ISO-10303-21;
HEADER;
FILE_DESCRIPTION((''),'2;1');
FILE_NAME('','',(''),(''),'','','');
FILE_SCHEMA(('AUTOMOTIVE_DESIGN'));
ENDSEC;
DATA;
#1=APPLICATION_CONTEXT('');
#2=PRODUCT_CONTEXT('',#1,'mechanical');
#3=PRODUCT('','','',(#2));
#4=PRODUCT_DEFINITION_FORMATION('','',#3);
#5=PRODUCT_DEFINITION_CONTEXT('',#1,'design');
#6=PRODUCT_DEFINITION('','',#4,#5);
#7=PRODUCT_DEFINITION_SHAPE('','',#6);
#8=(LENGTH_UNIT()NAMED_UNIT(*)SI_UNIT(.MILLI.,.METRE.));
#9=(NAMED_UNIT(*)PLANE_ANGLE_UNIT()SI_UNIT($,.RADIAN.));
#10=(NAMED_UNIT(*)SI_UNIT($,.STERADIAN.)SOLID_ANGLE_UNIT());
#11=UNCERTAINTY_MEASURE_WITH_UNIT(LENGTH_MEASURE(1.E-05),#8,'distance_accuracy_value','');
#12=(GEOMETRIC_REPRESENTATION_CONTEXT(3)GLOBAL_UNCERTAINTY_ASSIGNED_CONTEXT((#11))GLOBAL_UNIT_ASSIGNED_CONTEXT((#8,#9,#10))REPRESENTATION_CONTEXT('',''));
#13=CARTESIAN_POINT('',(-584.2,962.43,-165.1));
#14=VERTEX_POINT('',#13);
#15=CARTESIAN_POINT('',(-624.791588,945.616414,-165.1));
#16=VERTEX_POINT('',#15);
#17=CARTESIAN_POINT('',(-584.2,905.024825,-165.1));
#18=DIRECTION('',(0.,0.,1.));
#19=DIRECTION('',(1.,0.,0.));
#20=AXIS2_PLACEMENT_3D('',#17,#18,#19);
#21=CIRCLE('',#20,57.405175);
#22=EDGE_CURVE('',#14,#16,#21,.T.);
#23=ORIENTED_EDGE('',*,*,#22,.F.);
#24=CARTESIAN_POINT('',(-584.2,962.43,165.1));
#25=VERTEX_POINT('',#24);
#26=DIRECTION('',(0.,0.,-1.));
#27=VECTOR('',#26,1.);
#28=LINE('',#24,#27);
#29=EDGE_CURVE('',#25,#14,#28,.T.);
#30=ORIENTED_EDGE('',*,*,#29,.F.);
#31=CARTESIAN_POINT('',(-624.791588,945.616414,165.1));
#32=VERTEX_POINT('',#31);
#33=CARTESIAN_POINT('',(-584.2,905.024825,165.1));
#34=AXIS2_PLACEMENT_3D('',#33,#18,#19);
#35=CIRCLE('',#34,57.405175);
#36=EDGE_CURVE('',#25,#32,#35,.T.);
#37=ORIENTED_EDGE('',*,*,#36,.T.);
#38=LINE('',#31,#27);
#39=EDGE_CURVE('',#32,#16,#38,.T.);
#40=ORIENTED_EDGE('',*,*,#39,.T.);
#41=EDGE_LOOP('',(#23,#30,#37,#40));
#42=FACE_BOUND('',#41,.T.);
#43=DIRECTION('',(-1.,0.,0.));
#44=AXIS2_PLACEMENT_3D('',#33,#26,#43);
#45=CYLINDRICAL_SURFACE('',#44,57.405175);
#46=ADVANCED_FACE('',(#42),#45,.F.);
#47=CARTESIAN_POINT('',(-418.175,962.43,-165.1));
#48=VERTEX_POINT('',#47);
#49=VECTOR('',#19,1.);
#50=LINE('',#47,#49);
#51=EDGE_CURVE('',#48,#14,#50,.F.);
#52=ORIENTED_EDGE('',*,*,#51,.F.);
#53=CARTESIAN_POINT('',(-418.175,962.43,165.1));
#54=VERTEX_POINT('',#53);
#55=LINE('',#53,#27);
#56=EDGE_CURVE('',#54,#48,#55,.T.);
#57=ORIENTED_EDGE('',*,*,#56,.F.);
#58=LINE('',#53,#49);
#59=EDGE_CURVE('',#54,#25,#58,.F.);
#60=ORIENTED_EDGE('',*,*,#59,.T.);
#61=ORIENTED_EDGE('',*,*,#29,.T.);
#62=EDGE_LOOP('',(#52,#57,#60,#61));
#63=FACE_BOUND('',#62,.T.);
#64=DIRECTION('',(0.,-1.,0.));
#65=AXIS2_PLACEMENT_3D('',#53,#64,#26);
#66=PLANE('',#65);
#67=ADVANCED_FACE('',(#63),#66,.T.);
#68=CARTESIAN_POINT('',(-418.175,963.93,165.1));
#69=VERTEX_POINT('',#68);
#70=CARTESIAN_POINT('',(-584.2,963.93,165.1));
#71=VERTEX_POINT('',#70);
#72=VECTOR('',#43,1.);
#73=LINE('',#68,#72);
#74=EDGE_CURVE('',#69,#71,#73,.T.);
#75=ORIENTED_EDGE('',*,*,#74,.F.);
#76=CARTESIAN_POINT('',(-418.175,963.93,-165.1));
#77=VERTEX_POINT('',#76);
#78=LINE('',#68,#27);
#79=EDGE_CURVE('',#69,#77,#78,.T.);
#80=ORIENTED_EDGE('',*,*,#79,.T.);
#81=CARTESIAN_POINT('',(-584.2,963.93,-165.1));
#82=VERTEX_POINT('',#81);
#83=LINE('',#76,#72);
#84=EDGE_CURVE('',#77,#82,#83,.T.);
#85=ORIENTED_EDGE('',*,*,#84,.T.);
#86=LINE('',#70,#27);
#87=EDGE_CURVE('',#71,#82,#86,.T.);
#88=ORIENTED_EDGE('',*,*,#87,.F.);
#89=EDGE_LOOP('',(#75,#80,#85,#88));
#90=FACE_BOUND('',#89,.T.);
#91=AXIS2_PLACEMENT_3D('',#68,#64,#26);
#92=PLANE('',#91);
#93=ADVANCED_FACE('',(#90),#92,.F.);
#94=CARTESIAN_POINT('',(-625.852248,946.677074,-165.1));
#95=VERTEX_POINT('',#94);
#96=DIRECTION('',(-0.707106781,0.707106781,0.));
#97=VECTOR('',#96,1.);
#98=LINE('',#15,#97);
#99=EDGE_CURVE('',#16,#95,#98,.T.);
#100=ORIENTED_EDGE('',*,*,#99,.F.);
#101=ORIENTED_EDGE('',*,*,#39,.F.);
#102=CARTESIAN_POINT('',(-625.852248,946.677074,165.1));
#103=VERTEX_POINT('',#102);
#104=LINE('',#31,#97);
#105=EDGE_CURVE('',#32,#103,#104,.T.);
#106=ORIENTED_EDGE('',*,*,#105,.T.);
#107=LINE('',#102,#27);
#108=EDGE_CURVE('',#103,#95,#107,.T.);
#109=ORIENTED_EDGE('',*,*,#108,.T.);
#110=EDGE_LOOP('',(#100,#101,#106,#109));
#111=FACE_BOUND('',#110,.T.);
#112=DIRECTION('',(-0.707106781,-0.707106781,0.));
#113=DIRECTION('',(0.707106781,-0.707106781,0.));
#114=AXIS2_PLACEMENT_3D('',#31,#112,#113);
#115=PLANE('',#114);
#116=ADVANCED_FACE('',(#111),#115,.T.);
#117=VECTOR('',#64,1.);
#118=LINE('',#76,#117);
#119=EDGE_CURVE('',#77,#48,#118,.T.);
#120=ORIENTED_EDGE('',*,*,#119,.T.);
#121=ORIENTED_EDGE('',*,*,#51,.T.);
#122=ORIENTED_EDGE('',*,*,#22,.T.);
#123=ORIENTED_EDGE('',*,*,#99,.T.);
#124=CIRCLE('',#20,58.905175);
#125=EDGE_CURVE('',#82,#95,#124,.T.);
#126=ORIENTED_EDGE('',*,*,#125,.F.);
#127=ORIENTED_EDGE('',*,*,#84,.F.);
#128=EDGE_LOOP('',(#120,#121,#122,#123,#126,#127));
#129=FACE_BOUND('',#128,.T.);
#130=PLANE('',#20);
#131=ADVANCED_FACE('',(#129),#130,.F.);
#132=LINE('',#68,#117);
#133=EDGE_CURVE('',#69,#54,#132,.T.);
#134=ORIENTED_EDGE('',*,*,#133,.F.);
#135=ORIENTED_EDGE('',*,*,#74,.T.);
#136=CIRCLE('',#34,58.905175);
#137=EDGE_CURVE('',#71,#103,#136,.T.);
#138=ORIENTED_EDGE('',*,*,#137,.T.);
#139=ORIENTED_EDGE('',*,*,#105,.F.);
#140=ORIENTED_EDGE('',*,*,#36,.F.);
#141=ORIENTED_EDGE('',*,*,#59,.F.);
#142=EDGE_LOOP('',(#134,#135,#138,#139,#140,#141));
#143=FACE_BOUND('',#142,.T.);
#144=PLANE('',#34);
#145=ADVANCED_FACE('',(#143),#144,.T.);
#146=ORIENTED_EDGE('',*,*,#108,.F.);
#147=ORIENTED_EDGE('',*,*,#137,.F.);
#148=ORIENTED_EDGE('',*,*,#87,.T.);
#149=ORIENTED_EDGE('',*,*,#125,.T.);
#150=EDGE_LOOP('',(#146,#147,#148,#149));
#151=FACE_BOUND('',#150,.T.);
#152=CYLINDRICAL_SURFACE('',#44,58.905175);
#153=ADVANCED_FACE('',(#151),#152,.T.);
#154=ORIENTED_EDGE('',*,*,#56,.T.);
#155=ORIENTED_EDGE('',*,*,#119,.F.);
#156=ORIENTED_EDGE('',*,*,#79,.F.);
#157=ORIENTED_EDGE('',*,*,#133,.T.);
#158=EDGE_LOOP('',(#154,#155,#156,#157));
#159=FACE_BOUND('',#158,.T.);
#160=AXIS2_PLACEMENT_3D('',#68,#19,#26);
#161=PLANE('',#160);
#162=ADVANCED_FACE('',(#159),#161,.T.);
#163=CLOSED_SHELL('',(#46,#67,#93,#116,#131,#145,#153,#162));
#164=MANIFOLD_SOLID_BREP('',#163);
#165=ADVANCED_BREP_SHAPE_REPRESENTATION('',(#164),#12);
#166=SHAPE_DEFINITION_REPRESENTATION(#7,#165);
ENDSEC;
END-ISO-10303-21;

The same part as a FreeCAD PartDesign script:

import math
import FreeCAD as App
import Part
import Sketcher
Q = App.Units.Quantity

doc = App.newDocument("Part")
body = doc.addObject("PartDesign::Body", "Body")

sketch1 = body.newObject("Sketcher::SketchObject", "Sketch")
sketch1.AttachmentSupport = (doc.getObject("XY_Plane"), [""])
sketch1.MapMode = "FlatFace"
sketch1.addGeometry([
    Part.LineSegment(App.Vector(-418.175, 963.93, 0), App.Vector(-584.2, 963.93, 0)),
    Part.ArcOfCircle(Part.Circle(App.Vector(-584.2, 905.024825, 0), App.Vector(0, 0, 1), 58.905175), math.radians(90), math.radians(135)),
    Part.LineSegment(App.Vector(-625.852248, 946.677074, 0), App.Vector(-624.791588, 945.616414, 0)),
    Part.ArcOfCircle(Part.Circle(App.Vector(-584.2, 905.024825, 0), App.Vector(0, 0, 1), 57.405175), math.radians(90), math.radians(135)),
    Part.LineSegment(App.Vector(-584.2, 962.43, 0), App.Vector(-418.175, 962.43, 0)),
    Part.LineSegment(App.Vector(-418.175, 962.43, 0), App.Vector(-418.175, 963.93, 0)),
], False)
sketch1.addConstraint([
    Sketcher.Constraint("Tangent", 0, 2, 1, 1),
    Sketcher.Constraint("Coincident", 1, 2, 2, 1),
    Sketcher.Constraint("Coincident", 2, 2, 3, 2),
    Sketcher.Constraint("Tangent", 3, 1, 4, 1),
    Sketcher.Constraint("Coincident", 4, 2, 5, 1),
    Sketcher.Constraint("Coincident", 5, 2, 0, 1),
    Sketcher.Constraint("Horizontal", 0),
    Sketcher.Constraint("Horizontal", 4),
    Sketcher.Constraint("Vertical", 5),
    Sketcher.Constraint("Coincident", 3, 3, 1, 3),
    Sketcher.Constraint("Angle", 2, Q("-45 deg")),
    Sketcher.Constraint("DistanceY", 5, 1, 5, 2, Q("1.5 mm")),
    Sketcher.Constraint("DistanceX", 1, 3, -1, 1, Q("584.2 mm")),
    Sketcher.Constraint("DistanceX", 0, 2, 0, 1, Q("166.025 mm")),
    Sketcher.Constraint("DistanceY", -1, 1, 0, 2, Q("963.93 mm")),
    Sketcher.Constraint("Radius", 1, Q("58.905175 mm")),
    Sketcher.Constraint("DistanceX", 1, 2, -1, 1, Q("625.852248 mm")),
])
pad1 = body.newObject("PartDesign::Pad", "Pad")
pad1.Profile = sketch1
pad1.Length = 330.2
pad1.Midplane = True

doc.recompute()
